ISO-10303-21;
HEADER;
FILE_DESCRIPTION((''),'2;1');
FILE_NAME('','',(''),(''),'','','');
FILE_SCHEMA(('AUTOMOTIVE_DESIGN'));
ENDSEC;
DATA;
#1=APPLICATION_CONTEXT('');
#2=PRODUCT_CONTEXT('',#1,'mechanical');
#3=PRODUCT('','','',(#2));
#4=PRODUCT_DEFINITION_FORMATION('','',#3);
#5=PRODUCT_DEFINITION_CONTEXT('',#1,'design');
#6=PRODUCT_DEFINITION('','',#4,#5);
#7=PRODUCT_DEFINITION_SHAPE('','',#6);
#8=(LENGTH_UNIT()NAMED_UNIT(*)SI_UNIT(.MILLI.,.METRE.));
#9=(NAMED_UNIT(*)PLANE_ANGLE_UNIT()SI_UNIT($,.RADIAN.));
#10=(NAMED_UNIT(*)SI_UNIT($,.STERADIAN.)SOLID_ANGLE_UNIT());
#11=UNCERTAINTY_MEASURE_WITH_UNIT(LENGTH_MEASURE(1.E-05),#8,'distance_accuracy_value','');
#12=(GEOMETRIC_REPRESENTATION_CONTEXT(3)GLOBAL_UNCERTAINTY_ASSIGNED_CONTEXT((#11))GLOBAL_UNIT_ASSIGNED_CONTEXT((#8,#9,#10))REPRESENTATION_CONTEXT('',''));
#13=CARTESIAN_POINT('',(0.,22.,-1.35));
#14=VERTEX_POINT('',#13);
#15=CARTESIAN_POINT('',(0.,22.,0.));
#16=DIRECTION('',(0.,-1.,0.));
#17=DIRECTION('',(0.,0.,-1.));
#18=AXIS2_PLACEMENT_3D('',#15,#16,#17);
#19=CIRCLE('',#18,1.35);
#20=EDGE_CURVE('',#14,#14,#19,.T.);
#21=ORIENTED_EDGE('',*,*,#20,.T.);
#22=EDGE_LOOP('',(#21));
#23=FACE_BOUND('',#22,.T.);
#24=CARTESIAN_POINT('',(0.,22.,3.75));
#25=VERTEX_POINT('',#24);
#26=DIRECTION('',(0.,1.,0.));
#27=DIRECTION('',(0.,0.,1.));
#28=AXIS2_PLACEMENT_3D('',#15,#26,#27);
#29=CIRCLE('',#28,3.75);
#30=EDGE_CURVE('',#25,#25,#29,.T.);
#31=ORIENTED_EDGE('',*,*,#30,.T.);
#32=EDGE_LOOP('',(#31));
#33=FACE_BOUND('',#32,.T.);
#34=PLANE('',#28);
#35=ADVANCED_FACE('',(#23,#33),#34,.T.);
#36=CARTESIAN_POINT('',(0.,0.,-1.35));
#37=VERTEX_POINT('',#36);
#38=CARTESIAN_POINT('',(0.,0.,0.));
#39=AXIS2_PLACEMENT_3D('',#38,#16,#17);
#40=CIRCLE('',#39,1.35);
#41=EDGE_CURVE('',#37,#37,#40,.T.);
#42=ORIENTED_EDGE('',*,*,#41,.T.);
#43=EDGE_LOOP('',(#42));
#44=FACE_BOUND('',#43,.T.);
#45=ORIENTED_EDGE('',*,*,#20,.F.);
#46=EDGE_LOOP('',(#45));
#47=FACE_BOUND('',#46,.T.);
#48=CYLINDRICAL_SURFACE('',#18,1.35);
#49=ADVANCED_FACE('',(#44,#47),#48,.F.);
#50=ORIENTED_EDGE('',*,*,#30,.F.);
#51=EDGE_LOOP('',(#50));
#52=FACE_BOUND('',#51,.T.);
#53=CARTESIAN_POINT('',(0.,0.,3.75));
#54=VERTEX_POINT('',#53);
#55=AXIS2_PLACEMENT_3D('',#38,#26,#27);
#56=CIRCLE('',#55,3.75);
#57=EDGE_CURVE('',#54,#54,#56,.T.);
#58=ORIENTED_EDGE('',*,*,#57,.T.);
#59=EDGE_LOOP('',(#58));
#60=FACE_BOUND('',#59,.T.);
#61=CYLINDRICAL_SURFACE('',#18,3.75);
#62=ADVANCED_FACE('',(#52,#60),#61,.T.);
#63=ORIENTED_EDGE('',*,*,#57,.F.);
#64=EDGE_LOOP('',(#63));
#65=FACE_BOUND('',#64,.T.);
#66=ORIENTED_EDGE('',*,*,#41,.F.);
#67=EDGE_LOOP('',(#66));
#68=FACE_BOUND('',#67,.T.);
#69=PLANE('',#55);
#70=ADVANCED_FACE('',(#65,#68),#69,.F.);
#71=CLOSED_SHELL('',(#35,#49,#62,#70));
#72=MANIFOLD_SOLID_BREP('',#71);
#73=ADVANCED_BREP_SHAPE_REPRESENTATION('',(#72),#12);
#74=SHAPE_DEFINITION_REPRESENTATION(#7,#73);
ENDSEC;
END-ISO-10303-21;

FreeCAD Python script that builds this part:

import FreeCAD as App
import Part
import Sketcher

doc = App.newDocument("Part")
params = doc.addObject("Spreadsheet::Sheet", "Params")
for row, (alias, value) in enumerate([
    ("sketch1_diameter", "7.5 mm"),
    ("pad1_length", "22 mm"),
    ("sketch2_diameter", "2.7 mm"),
], start=1):
    params.set(f"A{row}", alias)
    params.set(f"B{row}", "=" + value)
    params.setAlias(f"B{row}", alias)

body = doc.addObject("PartDesign::Body", "Body")

sketch1 = body.newObject("Sketcher::SketchObject", "Sketch")
sketch1.AttachmentSupport = (doc.getObject("XZ_Plane"), [""])
sketch1.MapMode = "FlatFace"
sketch1.addGeometry(Part.Circle(App.Vector(0, 0, 0), App.Vector(0, 0, 1), 3.75), False)
sketch1.addConstraint([
    Sketcher.Constraint("Coincident", 0, 3, -1, 1),
    Sketcher.Constraint("Diameter", 0, 7.5),
])
sketch1.setExpression("Constraints[1]", "Params.sketch1_diameter")
pad1 = body.newObject("PartDesign::Pad", "Pad")
pad1.Profile = sketch1
pad1.setExpression("Length", "Params.pad1_length")
pad1.Reversed = True

sketch2 = body.newObject("Sketcher::SketchObject", "Sketch001")
sketch2.AttachmentSupport = (doc.getObject("XZ_Plane"), [""])
sketch2.MapMode = "FlatFace"
sketch2.addGeometry(Part.Circle(App.Vector(0, 0, 0), App.Vector(0, 0, 1), 1.35), False)
sketch2.addConstraint([
    Sketcher.Constraint("Coincident", 0, 3, -1, 1),
    Sketcher.Constraint("Diameter", 0, 2.7),
])
sketch2.setExpression("Constraints[1]", "Params.sketch2_diameter")
pocket1 = body.newObject("PartDesign::Pocket", "Pocket")
pocket1.Profile = sketch2
pocket1.Type = "ThroughAll"

doc.recompute()
